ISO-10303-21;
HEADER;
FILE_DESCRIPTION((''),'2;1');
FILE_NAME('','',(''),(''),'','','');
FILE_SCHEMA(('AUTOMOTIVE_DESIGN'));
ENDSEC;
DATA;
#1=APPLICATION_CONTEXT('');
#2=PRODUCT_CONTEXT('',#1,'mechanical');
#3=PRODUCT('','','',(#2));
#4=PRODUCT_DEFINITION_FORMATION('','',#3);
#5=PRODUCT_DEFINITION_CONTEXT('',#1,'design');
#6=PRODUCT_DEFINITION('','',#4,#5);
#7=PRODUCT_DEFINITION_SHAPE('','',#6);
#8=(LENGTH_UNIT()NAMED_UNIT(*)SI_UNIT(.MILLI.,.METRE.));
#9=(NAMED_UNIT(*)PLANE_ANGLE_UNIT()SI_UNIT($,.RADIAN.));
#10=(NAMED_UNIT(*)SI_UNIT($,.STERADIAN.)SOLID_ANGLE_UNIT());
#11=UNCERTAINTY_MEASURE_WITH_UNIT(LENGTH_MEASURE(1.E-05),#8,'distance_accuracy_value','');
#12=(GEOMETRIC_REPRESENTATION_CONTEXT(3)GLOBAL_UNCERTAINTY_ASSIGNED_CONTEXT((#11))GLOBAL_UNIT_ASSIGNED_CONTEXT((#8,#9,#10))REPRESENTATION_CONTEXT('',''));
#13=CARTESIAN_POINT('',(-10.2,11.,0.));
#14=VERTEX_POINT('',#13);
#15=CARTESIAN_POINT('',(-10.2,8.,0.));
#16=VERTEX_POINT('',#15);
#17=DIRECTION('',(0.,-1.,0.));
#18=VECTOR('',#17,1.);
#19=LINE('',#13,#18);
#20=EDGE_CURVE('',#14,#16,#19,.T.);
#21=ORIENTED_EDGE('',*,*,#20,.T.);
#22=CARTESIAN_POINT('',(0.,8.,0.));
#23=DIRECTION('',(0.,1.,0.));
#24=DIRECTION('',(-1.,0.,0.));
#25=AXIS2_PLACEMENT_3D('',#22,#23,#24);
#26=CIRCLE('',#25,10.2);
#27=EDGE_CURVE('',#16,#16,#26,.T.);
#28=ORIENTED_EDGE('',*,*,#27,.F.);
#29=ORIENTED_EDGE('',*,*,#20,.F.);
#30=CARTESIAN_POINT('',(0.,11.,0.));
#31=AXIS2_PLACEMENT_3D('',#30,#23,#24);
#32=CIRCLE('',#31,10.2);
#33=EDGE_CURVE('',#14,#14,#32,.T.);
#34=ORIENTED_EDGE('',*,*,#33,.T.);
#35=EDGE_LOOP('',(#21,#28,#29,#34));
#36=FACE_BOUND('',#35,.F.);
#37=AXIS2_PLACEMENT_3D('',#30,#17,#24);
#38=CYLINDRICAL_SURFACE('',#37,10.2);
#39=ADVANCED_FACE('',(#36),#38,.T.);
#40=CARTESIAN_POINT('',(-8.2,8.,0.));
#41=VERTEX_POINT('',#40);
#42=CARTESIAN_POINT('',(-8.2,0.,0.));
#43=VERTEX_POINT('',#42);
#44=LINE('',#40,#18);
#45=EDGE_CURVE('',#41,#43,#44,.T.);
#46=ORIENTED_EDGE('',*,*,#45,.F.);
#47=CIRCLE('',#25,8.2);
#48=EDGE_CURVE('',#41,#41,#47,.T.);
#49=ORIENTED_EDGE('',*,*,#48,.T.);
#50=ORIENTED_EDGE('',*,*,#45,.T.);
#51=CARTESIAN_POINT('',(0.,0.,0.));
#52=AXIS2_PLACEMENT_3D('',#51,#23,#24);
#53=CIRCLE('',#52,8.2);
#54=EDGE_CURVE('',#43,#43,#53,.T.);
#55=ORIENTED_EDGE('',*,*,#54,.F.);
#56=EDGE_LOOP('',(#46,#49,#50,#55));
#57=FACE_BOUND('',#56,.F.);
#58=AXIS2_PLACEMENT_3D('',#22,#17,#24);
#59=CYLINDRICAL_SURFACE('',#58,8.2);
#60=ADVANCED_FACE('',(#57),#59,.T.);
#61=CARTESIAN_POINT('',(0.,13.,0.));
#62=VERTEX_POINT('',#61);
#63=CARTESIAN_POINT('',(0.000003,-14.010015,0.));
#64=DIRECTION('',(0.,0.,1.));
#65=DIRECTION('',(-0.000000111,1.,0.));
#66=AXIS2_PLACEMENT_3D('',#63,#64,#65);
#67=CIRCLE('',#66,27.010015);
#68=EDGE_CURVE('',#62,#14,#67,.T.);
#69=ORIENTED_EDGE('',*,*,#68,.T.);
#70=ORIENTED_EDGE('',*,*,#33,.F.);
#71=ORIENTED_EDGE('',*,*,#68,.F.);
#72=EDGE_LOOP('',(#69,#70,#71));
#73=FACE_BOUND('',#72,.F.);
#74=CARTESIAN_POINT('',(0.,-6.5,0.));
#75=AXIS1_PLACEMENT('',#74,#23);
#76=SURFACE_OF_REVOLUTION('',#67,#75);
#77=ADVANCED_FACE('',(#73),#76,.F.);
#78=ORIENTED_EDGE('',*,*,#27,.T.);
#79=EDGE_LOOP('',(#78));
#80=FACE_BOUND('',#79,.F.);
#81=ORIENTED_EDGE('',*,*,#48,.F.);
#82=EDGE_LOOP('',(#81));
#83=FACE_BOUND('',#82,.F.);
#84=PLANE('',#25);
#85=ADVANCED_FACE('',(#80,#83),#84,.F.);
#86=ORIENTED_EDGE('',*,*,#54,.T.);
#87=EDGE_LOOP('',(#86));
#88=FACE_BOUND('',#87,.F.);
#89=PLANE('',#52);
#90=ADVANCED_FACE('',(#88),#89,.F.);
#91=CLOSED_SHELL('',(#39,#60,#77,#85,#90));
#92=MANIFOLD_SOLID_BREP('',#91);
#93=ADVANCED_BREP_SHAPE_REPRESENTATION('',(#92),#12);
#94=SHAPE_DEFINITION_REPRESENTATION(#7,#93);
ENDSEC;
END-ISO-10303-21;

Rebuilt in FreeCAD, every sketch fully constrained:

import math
import FreeCAD as App
import Part
import Sketcher

V = App.Vector

doc = App.newDocument("Part")
body = doc.addObject("PartDesign::Body", "Body")

# Sketch on XY plane
sketch1 = body.newObject("Sketcher::SketchObject", "Sketch")
sketch1.AttachmentSupport = (doc.getObject("XY_Plane"), [""])
sketch1.MapMode = "FlatFace"
sketch1.addGeometry(Part.LineSegment(V(-8.2, 0, 0), V(0, 0, 0)), False)
sketch1.addGeometry(Part.LineSegment(V(0, 0, 0), V(0, 13, 0)), False)
sketch1.addGeometry(Part.ArcOfCircle(Part.Circle(V(0.000003, -14.010015, 0), V(0, 0, 1), 27.010015), math.radians(90.000006), math.radians(112.18744)), False)
sketch1.addGeometry(Part.LineSegment(V(-10.2, 11, 0), V(-10.2, 8, 0)), False)
sketch1.addGeometry(Part.LineSegment(V(-10.2, 8, 0), V(-8.2, 8, 0)), False)
sketch1.addGeometry(Part.LineSegment(V(-8.2, 8, 0), V(-8.2, 0, 0)), False)
sketch1.addConstraint(Sketcher.Constraint("Coincident", 0, 2, 1, 1))
sketch1.addConstraint(Sketcher.Constraint("Coincident", 1, 2, 2, 1))
sketch1.addConstraint(Sketcher.Constraint("Coincident", 2, 2, 3, 1))
sketch1.addConstraint(Sketcher.Constraint("Coincident", 3, 2, 4, 1))
sketch1.addConstraint(Sketcher.Constraint("Coincident", 4, 2, 5, 1))
sketch1.addConstraint(Sketcher.Constraint("Coincident", 5, 2, 0, 1))
sketch1.addConstraint(Sketcher.Constraint("Horizontal", 0))
sketch1.addConstraint(Sketcher.Constraint("Vertical", 1))
sketch1.addConstraint(Sketcher.Constraint("Vertical", 3))
sketch1.addConstraint(Sketcher.Constraint("Horizontal", 4))
sketch1.addConstraint(Sketcher.Constraint("Vertical", 5))
sketch1.addConstraint(Sketcher.Constraint("Coincident", 0, 2, -1, 1))
sketch1.addConstraint(Sketcher.Constraint("DistanceX", 4, 1, 4, 2, 2.0))
sketch1.addConstraint(Sketcher.Constraint("DistanceY", 1, 1, 1, 2, 13.0))
sketch1.addConstraint(Sketcher.Constraint("DistanceY", 3, 2, 3, 1, 3.0))
sketch1.addConstraint(Sketcher.Constraint("DistanceY", 5, 2, 5, 1, 8.0))
sketch1.addConstraint(Sketcher.Constraint("DistanceX", 0, 1, 0, 2, 8.2))
sketch1.addConstraint(Sketcher.Constraint("Radius", 2, 27.010015))
revolution = body.newObject("PartDesign::Revolution", "Revolution")
revolution.Profile = sketch1
revolution.ReferenceAxis = (sketch1, ["V_Axis"])
revolution.Angle = 360

doc.recompute()
